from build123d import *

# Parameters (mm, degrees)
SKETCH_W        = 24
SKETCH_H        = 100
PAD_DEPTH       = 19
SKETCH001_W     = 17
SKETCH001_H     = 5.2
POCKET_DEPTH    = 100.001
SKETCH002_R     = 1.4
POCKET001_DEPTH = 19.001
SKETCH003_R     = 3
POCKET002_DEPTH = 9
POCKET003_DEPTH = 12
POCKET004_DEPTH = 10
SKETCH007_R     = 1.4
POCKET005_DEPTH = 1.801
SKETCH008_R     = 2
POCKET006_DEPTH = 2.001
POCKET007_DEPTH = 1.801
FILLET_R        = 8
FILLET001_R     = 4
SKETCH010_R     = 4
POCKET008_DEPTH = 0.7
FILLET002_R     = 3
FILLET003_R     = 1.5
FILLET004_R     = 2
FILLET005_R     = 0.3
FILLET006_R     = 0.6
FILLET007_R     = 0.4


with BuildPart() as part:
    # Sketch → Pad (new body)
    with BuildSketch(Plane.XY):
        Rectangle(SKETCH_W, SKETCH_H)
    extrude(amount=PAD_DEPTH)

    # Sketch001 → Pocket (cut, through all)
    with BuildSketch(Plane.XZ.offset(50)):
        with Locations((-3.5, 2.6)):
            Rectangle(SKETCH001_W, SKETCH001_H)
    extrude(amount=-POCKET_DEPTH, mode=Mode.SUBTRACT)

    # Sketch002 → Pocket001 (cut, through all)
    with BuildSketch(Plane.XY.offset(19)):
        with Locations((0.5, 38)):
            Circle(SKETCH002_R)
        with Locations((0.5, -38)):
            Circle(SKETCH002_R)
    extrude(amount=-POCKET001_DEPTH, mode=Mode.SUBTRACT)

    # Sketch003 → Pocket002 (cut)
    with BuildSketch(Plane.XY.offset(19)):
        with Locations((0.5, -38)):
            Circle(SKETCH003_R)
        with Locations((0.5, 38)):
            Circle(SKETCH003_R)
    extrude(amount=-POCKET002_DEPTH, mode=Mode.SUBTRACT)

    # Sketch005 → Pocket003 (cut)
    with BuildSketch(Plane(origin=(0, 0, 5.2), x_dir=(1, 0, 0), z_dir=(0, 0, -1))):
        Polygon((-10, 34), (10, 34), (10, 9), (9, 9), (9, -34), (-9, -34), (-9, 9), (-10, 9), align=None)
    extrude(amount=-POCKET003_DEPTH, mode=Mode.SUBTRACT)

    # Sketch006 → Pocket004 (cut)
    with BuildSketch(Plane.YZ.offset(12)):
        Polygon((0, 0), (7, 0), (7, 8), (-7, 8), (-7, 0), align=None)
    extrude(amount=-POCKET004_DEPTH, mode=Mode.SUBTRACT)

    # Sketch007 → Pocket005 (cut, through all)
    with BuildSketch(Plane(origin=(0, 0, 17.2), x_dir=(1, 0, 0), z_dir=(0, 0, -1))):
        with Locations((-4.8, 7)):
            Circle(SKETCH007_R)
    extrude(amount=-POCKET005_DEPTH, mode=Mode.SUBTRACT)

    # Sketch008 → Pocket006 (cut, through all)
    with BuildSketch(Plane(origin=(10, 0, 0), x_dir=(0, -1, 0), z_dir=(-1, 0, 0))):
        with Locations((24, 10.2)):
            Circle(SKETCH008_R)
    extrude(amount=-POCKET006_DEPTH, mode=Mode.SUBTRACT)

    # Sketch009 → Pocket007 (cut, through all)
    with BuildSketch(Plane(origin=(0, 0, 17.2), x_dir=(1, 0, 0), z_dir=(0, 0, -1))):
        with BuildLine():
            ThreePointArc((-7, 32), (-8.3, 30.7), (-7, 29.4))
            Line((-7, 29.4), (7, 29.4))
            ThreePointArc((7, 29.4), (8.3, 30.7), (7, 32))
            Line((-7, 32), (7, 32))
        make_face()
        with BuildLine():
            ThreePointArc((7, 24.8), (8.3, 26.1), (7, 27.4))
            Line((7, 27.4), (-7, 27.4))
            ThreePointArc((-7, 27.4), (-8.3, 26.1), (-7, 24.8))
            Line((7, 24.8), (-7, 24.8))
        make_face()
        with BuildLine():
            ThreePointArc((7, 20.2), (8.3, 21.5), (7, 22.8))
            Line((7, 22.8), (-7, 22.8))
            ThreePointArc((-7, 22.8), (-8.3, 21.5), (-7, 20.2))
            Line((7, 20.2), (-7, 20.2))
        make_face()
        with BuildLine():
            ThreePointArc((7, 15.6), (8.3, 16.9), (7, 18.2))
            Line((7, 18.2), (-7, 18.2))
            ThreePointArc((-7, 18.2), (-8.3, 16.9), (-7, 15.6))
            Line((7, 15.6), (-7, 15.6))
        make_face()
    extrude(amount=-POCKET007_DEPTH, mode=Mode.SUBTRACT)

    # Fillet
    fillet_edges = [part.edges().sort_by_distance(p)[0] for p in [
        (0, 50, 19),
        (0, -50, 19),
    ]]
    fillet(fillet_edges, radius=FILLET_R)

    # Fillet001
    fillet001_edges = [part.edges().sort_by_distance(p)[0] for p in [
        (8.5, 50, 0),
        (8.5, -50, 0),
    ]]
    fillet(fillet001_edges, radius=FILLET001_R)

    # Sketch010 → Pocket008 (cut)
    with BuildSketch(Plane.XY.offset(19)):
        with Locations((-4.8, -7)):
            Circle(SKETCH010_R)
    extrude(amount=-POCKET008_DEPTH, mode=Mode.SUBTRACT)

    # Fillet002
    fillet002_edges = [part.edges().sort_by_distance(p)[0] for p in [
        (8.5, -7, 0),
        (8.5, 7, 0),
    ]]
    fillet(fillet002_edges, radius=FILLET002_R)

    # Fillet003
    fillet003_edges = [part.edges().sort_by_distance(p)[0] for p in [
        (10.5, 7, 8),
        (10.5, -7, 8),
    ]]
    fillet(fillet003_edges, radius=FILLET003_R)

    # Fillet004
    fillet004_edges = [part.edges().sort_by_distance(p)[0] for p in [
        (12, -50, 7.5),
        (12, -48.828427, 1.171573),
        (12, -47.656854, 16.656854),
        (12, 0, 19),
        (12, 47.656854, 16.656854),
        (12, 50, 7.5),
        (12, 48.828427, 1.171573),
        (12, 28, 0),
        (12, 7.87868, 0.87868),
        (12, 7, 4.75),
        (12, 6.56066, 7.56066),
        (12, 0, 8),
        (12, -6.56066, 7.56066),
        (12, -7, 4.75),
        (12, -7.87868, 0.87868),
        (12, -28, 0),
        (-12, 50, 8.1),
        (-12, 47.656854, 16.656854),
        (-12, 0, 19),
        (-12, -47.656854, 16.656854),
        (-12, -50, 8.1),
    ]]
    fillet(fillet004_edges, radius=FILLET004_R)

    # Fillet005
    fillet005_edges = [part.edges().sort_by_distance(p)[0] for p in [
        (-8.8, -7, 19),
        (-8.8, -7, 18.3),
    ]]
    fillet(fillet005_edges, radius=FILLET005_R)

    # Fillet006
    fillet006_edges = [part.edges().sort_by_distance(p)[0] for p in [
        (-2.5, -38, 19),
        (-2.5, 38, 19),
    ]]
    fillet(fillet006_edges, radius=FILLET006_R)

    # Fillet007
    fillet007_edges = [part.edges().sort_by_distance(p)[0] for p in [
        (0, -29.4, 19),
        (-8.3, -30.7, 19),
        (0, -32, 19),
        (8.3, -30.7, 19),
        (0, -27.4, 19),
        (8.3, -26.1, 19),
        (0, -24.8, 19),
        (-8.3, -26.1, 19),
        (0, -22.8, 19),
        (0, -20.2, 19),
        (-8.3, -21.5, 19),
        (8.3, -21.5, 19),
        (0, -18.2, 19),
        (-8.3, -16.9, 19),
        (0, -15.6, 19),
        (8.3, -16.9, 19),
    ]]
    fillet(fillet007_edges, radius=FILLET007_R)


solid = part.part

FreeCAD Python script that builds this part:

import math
import FreeCAD as App
import Part
import Sketcher

V = App.Vector
Q = App.Units.Quantity


def edges_at(feature, points):
    """Names of the edges that pass closest to the given points."""
    edges = feature.Shape.Edges
    near = lambda p: min(range(len(edges)), key=lambda i: edges[i].distToShape(Part.Vertex(*p))[0])
    return sorted({f"Edge{near(p) + 1}" for p in points})

doc = App.newDocument("Part")
params = doc.addObject("Spreadsheet::Sheet", "Params")
for row, (alias, value) in enumerate([
    ("sketch1_width", "24 mm"),
    ("sketch1_height", "100 mm"),
    ("pad1_length", "19 mm"),
    ("sketch2_width", "17 mm"),
    ("sketch2_height", "5.2 mm"),
    ("sketch3_diameter", "2.8 mm"),
    ("sketch4_diameter", "6 mm"),
    ("pocket3_length", "9 mm"),
    ("sketch5_width", "20 mm"),
    ("sketch5_width2", "1 mm"),
    ("sketch5_height", "25 mm"),
    ("sketch5_height2", "43 mm"),
    ("pocket4_length", "12 mm"),
    ("sketch6_width", "14 mm"),
    ("sketch6_height", "8 mm"),
    ("pocket5_length", "10 mm"),
    ("sketch7_diameter", "2.8 mm"),
    ("sketch8_diameter", "4 mm"),
    ("sketch9_radius", "1.3 mm"),
    ("sketch9_width", "14 mm"),
    ("fillet_radius", "8 mm"),
    ("fillet2_radius", "4 mm"),
    ("sketch10_diameter", "8 mm"),
    ("pocket9_length", "0.7 mm"),
    ("fillet3_radius", "3 mm"),
    ("fillet4_radius", "1.5 mm"),
    ("fillet5_radius", "2 mm"),
    ("fillet6_radius", "0.3 mm"),
    ("fillet7_radius", "0.6 mm"),
    ("fillet8_radius", "0.4 mm"),
], start=1):
    params.set(f"A{row}", alias)
    params.set(f"B{row}", "=" + value)
    params.setAlias(f"B{row}", alias)

body = doc.addObject("PartDesign::Body", "Body")

sketch1 = body.newObject("Sketcher::SketchObject", "Sketch")
sketch1.AttachmentSupport = (doc.getObject("XY_Plane"), [""])
sketch1.MapMode = "FlatFace"
sketch1.addGeometry([
    Part.LineSegment(V(-12, 50, 0), V(-12, -50, 0)),
    Part.LineSegment(V(-12, -50, 0), V(12, -50, 0)),
    Part.LineSegment(V(12, -50, 0), V(12, 50, 0)),
    Part.LineSegment(V(12, 50, 0), V(-12, 50, 0)),
], False)
sketch1.addConstraint([
    Sketcher.Constraint("Coincident", 0, 2, 1, 1),
    Sketcher.Constraint("Coincident", 1, 2, 2, 1),
    Sketcher.Constraint("Coincident", 2, 2, 3, 1),
    Sketcher.Constraint("Coincident", 3, 2, 0, 1),
    Sketcher.Constraint("Vertical", 0),
    Sketcher.Constraint("Horizontal", 1),
    Sketcher.Constraint("Vertical", 2),
    Sketcher.Constraint("Horizontal", 3),
    Sketcher.Constraint("Symmetric", 0, 2, 2, 2, -1, 1),
    Sketcher.Constraint("DistanceX", 1, 1, 1, 2, Q("24 mm")),
    Sketcher.Constraint("DistanceY", 0, 2, 0, 1, Q("100 mm")),
])
sketch1.setExpression("Constraints[9]", "Params.sketch1_width")
sketch1.setExpression("Constraints[10]", "Params.sketch1_height")
pad1 = body.newObject("PartDesign::Pad", "Pad")
pad1.Profile = sketch1
pad1.setExpression("Length", "Params.pad1_length")

sketch2 = body.newObject("Sketcher::SketchObject", "Sketch001")
sketch2.AttachmentSupport = (doc.getObject("XZ_Plane"), [""])
sketch2.MapMode = "FlatFace"
sketch2.AttachmentOffset = App.Placement(V(0, 0, 50), App.Rotation())
sketch2.addGeometry([
    Part.LineSegment(V(-12, 5, 0), V(-12, 0, 0)),
    Part.LineSegment(V(-12, 0, 0), V(5, 0, 0)),
    Part.LineSegment(V(5, 0, 0), V(5, 5, 0)),
    Part.LineSegment(V(5, 5, 0), V(-12, 5, 0)),
], False)
sketch2.addConstraint([
    Sketcher.Constraint("Coincident", 0, 2, 1, 1),
    Sketcher.Constraint("Coincident", 1, 2, 2, 1),
    Sketcher.Constraint("Coincident", 2, 2, 3, 1),
    Sketcher.Constraint("Coincident", 3, 2, 0, 1),
    Sketcher.Constraint("Vertical", 0),
    Sketcher.Constraint("Horizontal", 1),
    Sketcher.Constraint("Vertical", 2),
    Sketcher.Constraint("Horizontal", 3),
    Sketcher.Constraint("PointOnObject", 0, 2, -1),
    Sketcher.Constraint("DistanceX", 1, 1, 1, 2, Q("17 mm")),
    Sketcher.Constraint("DistanceY", 0, 2, 0, 1, Q("5.2 mm")),
    Sketcher.Constraint("DistanceX", 0, 2, -1, 1, Q("12 mm")),
])
sketch2.setExpression("Constraints[9]", "Params.sketch2_width")
sketch2.setExpression("Constraints[10]", "Params.sketch2_height")
pocket1 = body.newObject("PartDesign::Pocket", "Pocket")
pocket1.Profile = sketch2
pocket1.Type = "ThroughAll"

sketch3 = body.newObject("Sketcher::SketchObject", "Sketch002")
sketch3.AttachmentSupport = (doc.getObject("XY_Plane"), [""])
sketch3.MapMode = "FlatFace"
sketch3.AttachmentOffset = App.Placement(V(0, 0, 19), App.Rotation())
sketch3.addGeometry([
    Part.Circle(V(0.5, 38, 0), V(0, 0, 1), 1.4),
    Part.Circle(V(0.5, -38, 0), V(0, 0, 1), 1.4),
], False)
sketch3.addConstraint([
    Sketcher.Constraint("Equal", 0, 1),
    Sketcher.Constraint("Symmetric", 0, 3, 1, 3, -1),
    Sketcher.Constraint("Diameter", 0, Q("2.8 mm")),
    Sketcher.Constraint("DistanceY", -1, 1, 0, 3, Q("38 mm")),
    Sketcher.Constraint("DistanceX", -1, 1, 0, 3, Q("0.5 mm")),
])
sketch3.setExpression("Constraints[2]", "Params.sketch3_diameter")
pocket2 = body.newObject("PartDesign::Pocket", "Pocket001")
pocket2.Profile = sketch3
pocket2.Type = "ThroughAll"

sketch4 = body.newObject("Sketcher::SketchObject", "Sketch003")
sketch4.AttachmentSupport = (doc.getObject("XY_Plane"), [""])
sketch4.MapMode = "FlatFace"
sketch4.AttachmentOffset = App.Placement(V(0, 0, 19), App.Rotation())
sketch4.addGeometry([
    Part.Circle(V(0.5, -38, 0), V(0, 0, 1), 3),
    Part.Circle(V(0.5, 38, 0), V(0, 0, 1), 3),
], False)
sketch4.addConstraint([
    Sketcher.Constraint("Equal", 0, 1),
    Sketcher.Constraint("Symmetric", 0, 3, 1, 3, -1),
    Sketcher.Constraint("Diameter", 0, Q("6 mm")),
    Sketcher.Constraint("DistanceY", 0, 3, -1, 1, Q("38 mm")),
    Sketcher.Constraint("DistanceX", -1, 1, 0, 3, Q("0.5 mm")),
])
sketch4.setExpression("Constraints[2]", "Params.sketch4_diameter")
pocket3 = body.newObject("PartDesign::Pocket", "Pocket002")
pocket3.Profile = sketch4
pocket3.setExpression("Length", "Params.pocket3_length")

sketch5 = body.newObject("Sketcher::SketchObject", "Sketch004")
sketch5.AttachmentSupport = (doc.getObject("XY_Plane"), [""])
sketch5.MapMode = "FlatFace"
sketch5.AttachmentOffset = App.Placement(V(0, 0, 5.2), App.Rotation())
sketch5.addGeometry([
    Part.LineSegment(V(10, -34, 0), V(-10, -34, 0)),
    Part.LineSegment(V(-10, -34, 0), V(-10, -9, 0)),
    Part.LineSegment(V(-10, -9, 0), V(-9, -9, 0)),
    Part.LineSegment(V(-9, -9, 0), V(-9, 34, 0)),
    Part.LineSegment(V(-9, 34, 0), V(9, 34, 0)),
    Part.LineSegment(V(9, 34, 0), V(9, -9, 0)),
    Part.LineSegment(V(9, -9, 0), V(10, -9, 0)),
    Part.LineSegment(V(10, -9, 0), V(10, -34, 0)),
], False)
sketch5.addConstraint([
    Sketcher.Constraint("Coincident", 0, 2, 1, 1),
    Sketcher.Constraint("Coincident", 1, 2, 2, 1),
    Sketcher.Constraint("Coincident", 2, 2, 3, 1),
    Sketcher.Constraint("Coincident", 3, 2, 4, 1),
    Sketcher.Constraint("Coincident", 4, 2, 5, 1),
    Sketcher.Constraint("Coincident", 5, 2, 6, 1),
    Sketcher.Constraint("Coincident", 6, 2, 7, 1),
    Sketcher.Constraint("Coincident", 7, 2, 0, 1),
    Sketcher.Constraint("Horizontal", 0),
    Sketcher.Constraint("Vertical", 1),
    Sketcher.Constraint("Horizontal", 2),
    Sketcher.Constraint("Vertical", 3),
    Sketcher.Constraint("Horizontal", 4),
    Sketcher.Constraint("Vertical", 5),
    Sketcher.Constraint("Horizontal", 6),
    Sketcher.Constraint("Vertical", 7),
    Sketcher.Constraint("Symmetric", 2, 2, 5, 2, -2),
    Sketcher.Constraint("Equal", 2, 6),
    Sketcher.Constraint("DistanceX", 0, 2, 0, 1, Q("20 mm")),
    Sketcher.Constraint("DistanceX", 2, 1, 2, 2, Q("1 mm")),
    Sketcher.Constraint("DistanceY", 1, 1, 1, 2, Q("25 mm")),
    Sketcher.Constraint("DistanceY", 3, 1, 3, 2, Q("43 mm")),
    Sketcher.Constraint("DistanceY", 0, 2, -1, 1, Q("34 mm")),
])
sketch5.setExpression("Constraints[18]", "Params.sketch5_width")
sketch5.setExpression("Constraints[19]", "Params.sketch5_width2")
sketch5.setExpression("Constraints[20]", "Params.sketch5_height")
sketch5.setExpression("Constraints[21]", "Params.sketch5_height2")
pocket4 = body.newObject("PartDesign::Pocket", "Pocket003")
pocket4.Profile = sketch5
pocket4.setExpression("Length", "Params.pocket4_length")
pocket4.Reversed = True

sketch6 = body.newObject("Sketcher::SketchObject", "Sketch005")
sketch6.AttachmentSupport = (doc.getObject("YZ_Plane"), [""])
sketch6.MapMode = "FlatFace"
sketch6.AttachmentOffset = App.Placement(V(0, 0, 12), App.Rotation())
sketch6.addGeometry([
    Part.LineSegment(V(7, 0, 0), V(7, 8, 0)),
    Part.LineSegment(V(7, 8, 0), V(-7, 8, 0)),
    Part.LineSegment(V(-7, 8, 0), V(-7, 0, 0)),
    Part.LineSegment(V(-7, 0, 0), V(7, 0, 0)),
], False)
sketch6.addConstraint([
    Sketcher.Constraint("Coincident", 0, 2, 1, 1),
    Sketcher.Constraint("Coincident", 1, 2, 2, 1),
    Sketcher.Constraint("Coincident", 2, 2, 3, 1),
    Sketcher.Constraint("Coincident", 3, 2, 0, 1),
    Sketcher.Constraint("Vertical", 0),
    Sketcher.Constraint("Horizontal", 1),
    Sketcher.Constraint("Vertical", 2),
    Sketcher.Constraint("Horizontal", 3),
    Sketcher.Constraint("Symmetric", 2, 2, 3, 2, -1, 1),
    Sketcher.Constraint("DistanceX", 1, 2, 1, 1, Q("14 mm")),
    Sketcher.Constraint("DistanceY", 0, 1, 0, 2, Q("8 mm")),
])
sketch6.setExpression("Constraints[9]", "Params.sketch6_width")
sketch6.setExpression("Constraints[10]", "Params.sketch6_height")
pocket5 = body.newObject("PartDesign::Pocket", "Pocket004")
pocket5.Profile = sketch6
pocket5.setExpression("Length", "Params.pocket5_length")

sketch7 = body.newObject("Sketcher::SketchObject", "Sketch006")
sketch7.AttachmentSupport = (doc.getObject("XY_Plane"), [""])
sketch7.MapMode = "FlatFace"
sketch7.AttachmentOffset = App.Placement(V(0, 0, 17.2), App.Rotation())
sketch7.addGeometry(Part.Circle(V(-4.8, -7, 0), V(0, 0, 1), 1.4), False)
sketch7.addConstraint([
    Sketcher.Constraint("Diameter", 0, Q("2.8 mm")),
    Sketcher.Constraint("DistanceY", 0, 3, -1, 1, Q("7 mm")),
    Sketcher.Constraint("DistanceX", 0, 3, -1, 1, Q("4.8 mm")),
])
sketch7.setExpression("Constraints[0]", "Params.sketch7_diameter")
pocket6 = body.newObject("PartDesign::Pocket", "Pocket005")
pocket6.Profile = sketch7
pocket6.Type = "ThroughAll"
pocket6.Reversed = True

sketch8 = body.newObject("Sketcher::SketchObject", "Sketch007")
sketch8.AttachmentSupport = (doc.getObject("YZ_Plane"), [""])
sketch8.MapMode = "FlatFace"
sketch8.AttachmentOffset = App.Placement(V(0, 0, 10), App.Rotation())
sketch8.addGeometry(Part.Circle(V(-24, 10.2, 0), V(0, 0, 1), 2), False)
sketch8.addConstraint([
    Sketcher.Constraint("Diameter", 0, Q("4 mm")),
    Sketcher.Constraint("DistanceX", 0, 3, -1, 1, Q("24 mm")),
    Sketcher.Constraint("DistanceY", -1, 1, 0, 3, Q("10.2 mm")),
])
sketch8.setExpression("Constraints[0]", "Params.sketch8_diameter")
pocket7 = body.newObject("PartDesign::Pocket", "Pocket006")
pocket7.Profile = sketch8
pocket7.Type = "ThroughAll"
pocket7.Reversed = True

sketch9 = body.newObject("Sketcher::SketchObject", "Sketch008")
sketch9.AttachmentSupport = (doc.getObject("XY_Plane"), [""])
sketch9.MapMode = "FlatFace"
sketch9.AttachmentOffset = App.Placement(V(0, 0, 17.2), App.Rotation())
sketch9.addGeometry([
    Part.ArcOfCircle(Part.Circle(V(-7, -30.7, 0), V(0, 0, 1), 1.3), math.radians(90), math.radians(270)),
    Part.LineSegment(V(-7, -29.4, 0), V(7, -29.4, 0)),
    Part.ArcOfCircle(Part.Circle(V(7, -30.7, 0), V(0, 0, 1), 1.3), math.radians(-90), math.radians(90)),
    Part.LineSegment(V(7, -32, 0), V(-7, -32, 0)),
    Part.ArcOfCircle(Part.Circle(V(7, -26.1, 0), V(0, 0, 1), 1.3), math.radians(-90), math.radians(90)),
    Part.LineSegment(V(7, -27.4, 0), V(-7, -27.4, 0)),
    Part.ArcOfCircle(Part.Circle(V(-7, -26.1, 0), V(0, 0, 1), 1.3), math.radians(90), math.radians(270)),
    Part.LineSegment(V(-7, -24.8, 0), V(7, -24.8, 0)),
    Part.ArcOfCircle(Part.Circle(V(7, -21.5, 0), V(0, 0, 1), 1.3), math.radians(-90), math.radians(90)),
    Part.LineSegment(V(7, -22.8, 0), V(-7, -22.8, 0)),
    Part.ArcOfCircle(Part.Circle(V(-7, -21.5, 0), V(0, 0, 1), 1.3), math.radians(90), math.radians(270)),
    Part.LineSegment(V(-7, -20.2, 0), V(7, -20.2, 0)),
    Part.ArcOfCircle(Part.Circle(V(7, -16.9, 0), V(0, 0, 1), 1.3), math.radians(-90), math.radians(90)),
    Part.LineSegment(V(7, -18.2, 0), V(-7, -18.2, 0)),
    Part.ArcOfCircle(Part.Circle(V(-7, -16.9, 0), V(0, 0, 1), 1.3), math.radians(90), math.radians(270)),
    Part.LineSegment(V(-7, -15.6, 0), V(7, -15.6, 0)),
], False)
sketch9.addConstraint([
    Sketcher.Constraint("Tangent", 0, 1, 1, 1),
    Sketcher.Constraint("Tangent", 1, 2, 2, 2),
    Sketcher.Constraint("Tangent", 2, 1, 3, 1),
    Sketcher.Constraint("Tangent", 3, 2, 0, 2),
    Sketcher.Constraint("Tangent", 4, 1, 5, 1),
    Sketcher.Constraint("Tangent", 5, 2, 6, 2),
    Sketcher.Constraint("Tangent", 6, 1, 7, 1),
    Sketcher.Constraint("Tangent", 7, 2, 4, 2),
    Sketcher.Constraint("Tangent", 8, 1, 9, 1),
    Sketcher.Constraint("Tangent", 9, 2, 10, 2),
    Sketcher.Constraint("Tangent", 10, 1, 11, 1),
    Sketcher.Constraint("Tangent", 11, 2, 8, 2),
    Sketcher.Constraint("Tangent", 12, 1, 13, 1),
    Sketcher.Constraint("Tangent", 13, 2, 14, 2),
    Sketcher.Constraint("Tangent", 14, 1, 15, 1),
    Sketcher.Constraint("Tangent", 15, 2, 12, 2),
    Sketcher.Constraint("Horizontal", 1),
    Sketcher.Constraint("Horizontal", 3),
    Sketcher.Constraint("Horizontal", 5),
    Sketcher.Constraint("Horizontal", 7),
    Sketcher.Constraint("Horizontal", 9),
    Sketcher.Constraint("Horizontal", 11),
    Sketcher.Constraint("Horizontal", 13),
    Sketcher.Constraint("Horizontal", 15),
    Sketcher.Constraint("Equal", 2, 4),
    Sketcher.Constraint("Equal", 6, 8),
    Sketcher.Constraint("Equal", 10, 12),
    Sketcher.Constraint("Vertical", 2, 3, 4, 3),
    Sketcher.Constraint("Vertical", 0, 3, 6, 3),
    Sketcher.Constraint("Vertical", 4, 3, 8, 3),
    Sketcher.Constraint("Vertical", 6, 3, 10, 3),
    Sketcher.Constraint("Vertical", 8, 3, 12, 3),
    Sketcher.Constraint("Vertical", 10, 3, 14, 3),
    Sketcher.Constraint("Radius", 0, Q("1.3 mm")),
    Sketcher.Constraint("DistanceX", 1, 1, 1, 2, Q("14 mm")),
    Sketcher.Constraint("DistanceX", 0, 3, -1, 1, Q("7 mm")),
    Sketcher.Constraint("DistanceY", 2, 1, -1, 1, Q("32 mm")),
    Sketcher.Constraint("DistanceY", 1, 2, 4, 1, Q("2 mm")),
    Sketcher.Constraint("DistanceY", 7, 2, 8, 1, Q("2 mm")),
    Sketcher.Constraint("DistanceY", 11, 2, 12, 1, Q("2 mm")),
])
sketch9.setExpression("Constraints[33]", "Params.sketch9_radius")
sketch9.setExpression("Constraints[34]", "Params.sketch9_width")
pocket8 = body.newObject("PartDesign::Pocket", "Pocket007")
pocket8.Profile = sketch9
pocket8.Type = "ThroughAll"
pocket8.Reversed = True
doc.recompute()

fillet = body.newObject("PartDesign::Fillet", "Fillet")
fillet.Base = (pocket8, edges_at(pocket8, [(0, 50, 19), (0, -50, 19)]))
fillet.setExpression("Radius", "Params.fillet_radius")
doc.recompute()

fillet2 = body.newObject("PartDesign::Fillet", "Fillet001")
fillet2.Base = (fillet, edges_at(fillet, [(8.5, 50, 0), (8.5, -50, 0)]))
fillet2.setExpression("Radius", "Params.fillet2_radius")

sketch10 = body.newObject("Sketcher::SketchObject", "Sketch009")
sketch10.AttachmentSupport = (doc.getObject("XY_Plane"), [""])
sketch10.MapMode = "FlatFace"
sketch10.AttachmentOffset = App.Placement(V(0, 0, 19), App.Rotation())
sketch10.addGeometry(Part.Circle(V(-4.8, -7, 0), V(0, 0, 1), 4), False)
sketch10.addConstraint([
    Sketcher.Constraint("Diameter", 0, Q("8 mm")),
    Sketcher.Constraint("DistanceY", 0, 3, -1, 1, Q("7 mm")),
    Sketcher.Constraint("DistanceX", 0, 3, -1, 1, Q("4.8 mm")),
])
sketch10.setExpression("Constraints[0]", "Params.sketch10_diameter")
pocket9 = body.newObject("PartDesign::Pocket", "Pocket008")
pocket9.Profile = sketch10
pocket9.setExpression("Length", "Params.pocket9_length")
doc.recompute()

fillet3 = body.newObject("PartDesign::Fillet", "Fillet002")
fillet3.Base = (pocket9, edges_at(pocket9, [(8.5, -7, 0), (8.5, 7, 0)]))
fillet3.setExpression("Radius", "Params.fillet3_radius")
doc.recompute()

fillet4 = body.newObject("PartDesign::Fillet", "Fillet003")
fillet4.Base = (fillet3, edges_at(fillet3, [(10.5, 7, 8), (10.5, -7, 8)]))
fillet4.setExpression("Radius", "Params.fillet4_radius")
doc.recompute()

fillet5 = body.newObject("PartDesign::Fillet", "Fillet004")
fillet5.Base = (fillet4, edges_at(fillet4, [
    (12, -50, 7.5),
    (12, -48.828, 1.172),
    (12, -47.657, 16.657),
    (12, 0, 19),
    (12, 47.657, 16.657),
    (12, 50, 7.5),
    (12, 48.828, 1.172),
    (12, 28, 0),
    (12, 7.879, 0.879),
    (12, 7, 4.75),
    (12, 6.561, 7.561),
    (12, 0, 8),
    (12, -6.561, 7.561),
    (12, -7, 4.75),
    (12, -7.879, 0.879),
    (12, -28, 0),
    (-12, 50, 8.1),
    (-12, 47.657, 16.657),
    (-12, 0, 19),
    (-12, -47.657, 16.657),
    (-12, -50, 8.1),
]))
fillet5.setExpression("Radius", "Params.fillet5_radius")
doc.recompute()

fillet6 = body.newObject("PartDesign::Fillet", "Fillet005")
fillet6.Base = (fillet5, edges_at(fillet5, [(-8.8, -7, 19), (-8.8, -7, 18.3)]))
fillet6.setExpression("Radius", "Params.fillet6_radius")
doc.recompute()

fillet7 = body.newObject("PartDesign::Fillet", "Fillet006")
fillet7.Base = (fillet6, edges_at(fillet6, [(-2.5, -38, 19), (-2.5, 38, 19)]))
fillet7.setExpression("Radius", "Params.fillet7_radius")
doc.recompute()

fillet8 = body.newObject("PartDesign::Fillet", "Fillet007")
fillet8.Base = (fillet7, edges_at(fillet7, [
    (0, -29.4, 19),
    (-8.3, -30.7, 19),
    (0, -32, 19),
    (8.3, -30.7, 19),
    (0, -27.4, 19),
    (8.3, -26.1, 19),
    (0, -24.8, 19),
    (-8.3, -26.1, 19),
    (0, -22.8, 19),
    (0, -20.2, 19),
    (-8.3, -21.5, 19),
    (8.3, -21.5, 19),
    (0, -18.2, 19),
    (-8.3, -16.9, 19),
    (0, -15.6, 19),
    (8.3, -16.9, 19),
]))
fillet8.setExpression("Radius", "Params.fillet8_radius")

doc.recompute()
